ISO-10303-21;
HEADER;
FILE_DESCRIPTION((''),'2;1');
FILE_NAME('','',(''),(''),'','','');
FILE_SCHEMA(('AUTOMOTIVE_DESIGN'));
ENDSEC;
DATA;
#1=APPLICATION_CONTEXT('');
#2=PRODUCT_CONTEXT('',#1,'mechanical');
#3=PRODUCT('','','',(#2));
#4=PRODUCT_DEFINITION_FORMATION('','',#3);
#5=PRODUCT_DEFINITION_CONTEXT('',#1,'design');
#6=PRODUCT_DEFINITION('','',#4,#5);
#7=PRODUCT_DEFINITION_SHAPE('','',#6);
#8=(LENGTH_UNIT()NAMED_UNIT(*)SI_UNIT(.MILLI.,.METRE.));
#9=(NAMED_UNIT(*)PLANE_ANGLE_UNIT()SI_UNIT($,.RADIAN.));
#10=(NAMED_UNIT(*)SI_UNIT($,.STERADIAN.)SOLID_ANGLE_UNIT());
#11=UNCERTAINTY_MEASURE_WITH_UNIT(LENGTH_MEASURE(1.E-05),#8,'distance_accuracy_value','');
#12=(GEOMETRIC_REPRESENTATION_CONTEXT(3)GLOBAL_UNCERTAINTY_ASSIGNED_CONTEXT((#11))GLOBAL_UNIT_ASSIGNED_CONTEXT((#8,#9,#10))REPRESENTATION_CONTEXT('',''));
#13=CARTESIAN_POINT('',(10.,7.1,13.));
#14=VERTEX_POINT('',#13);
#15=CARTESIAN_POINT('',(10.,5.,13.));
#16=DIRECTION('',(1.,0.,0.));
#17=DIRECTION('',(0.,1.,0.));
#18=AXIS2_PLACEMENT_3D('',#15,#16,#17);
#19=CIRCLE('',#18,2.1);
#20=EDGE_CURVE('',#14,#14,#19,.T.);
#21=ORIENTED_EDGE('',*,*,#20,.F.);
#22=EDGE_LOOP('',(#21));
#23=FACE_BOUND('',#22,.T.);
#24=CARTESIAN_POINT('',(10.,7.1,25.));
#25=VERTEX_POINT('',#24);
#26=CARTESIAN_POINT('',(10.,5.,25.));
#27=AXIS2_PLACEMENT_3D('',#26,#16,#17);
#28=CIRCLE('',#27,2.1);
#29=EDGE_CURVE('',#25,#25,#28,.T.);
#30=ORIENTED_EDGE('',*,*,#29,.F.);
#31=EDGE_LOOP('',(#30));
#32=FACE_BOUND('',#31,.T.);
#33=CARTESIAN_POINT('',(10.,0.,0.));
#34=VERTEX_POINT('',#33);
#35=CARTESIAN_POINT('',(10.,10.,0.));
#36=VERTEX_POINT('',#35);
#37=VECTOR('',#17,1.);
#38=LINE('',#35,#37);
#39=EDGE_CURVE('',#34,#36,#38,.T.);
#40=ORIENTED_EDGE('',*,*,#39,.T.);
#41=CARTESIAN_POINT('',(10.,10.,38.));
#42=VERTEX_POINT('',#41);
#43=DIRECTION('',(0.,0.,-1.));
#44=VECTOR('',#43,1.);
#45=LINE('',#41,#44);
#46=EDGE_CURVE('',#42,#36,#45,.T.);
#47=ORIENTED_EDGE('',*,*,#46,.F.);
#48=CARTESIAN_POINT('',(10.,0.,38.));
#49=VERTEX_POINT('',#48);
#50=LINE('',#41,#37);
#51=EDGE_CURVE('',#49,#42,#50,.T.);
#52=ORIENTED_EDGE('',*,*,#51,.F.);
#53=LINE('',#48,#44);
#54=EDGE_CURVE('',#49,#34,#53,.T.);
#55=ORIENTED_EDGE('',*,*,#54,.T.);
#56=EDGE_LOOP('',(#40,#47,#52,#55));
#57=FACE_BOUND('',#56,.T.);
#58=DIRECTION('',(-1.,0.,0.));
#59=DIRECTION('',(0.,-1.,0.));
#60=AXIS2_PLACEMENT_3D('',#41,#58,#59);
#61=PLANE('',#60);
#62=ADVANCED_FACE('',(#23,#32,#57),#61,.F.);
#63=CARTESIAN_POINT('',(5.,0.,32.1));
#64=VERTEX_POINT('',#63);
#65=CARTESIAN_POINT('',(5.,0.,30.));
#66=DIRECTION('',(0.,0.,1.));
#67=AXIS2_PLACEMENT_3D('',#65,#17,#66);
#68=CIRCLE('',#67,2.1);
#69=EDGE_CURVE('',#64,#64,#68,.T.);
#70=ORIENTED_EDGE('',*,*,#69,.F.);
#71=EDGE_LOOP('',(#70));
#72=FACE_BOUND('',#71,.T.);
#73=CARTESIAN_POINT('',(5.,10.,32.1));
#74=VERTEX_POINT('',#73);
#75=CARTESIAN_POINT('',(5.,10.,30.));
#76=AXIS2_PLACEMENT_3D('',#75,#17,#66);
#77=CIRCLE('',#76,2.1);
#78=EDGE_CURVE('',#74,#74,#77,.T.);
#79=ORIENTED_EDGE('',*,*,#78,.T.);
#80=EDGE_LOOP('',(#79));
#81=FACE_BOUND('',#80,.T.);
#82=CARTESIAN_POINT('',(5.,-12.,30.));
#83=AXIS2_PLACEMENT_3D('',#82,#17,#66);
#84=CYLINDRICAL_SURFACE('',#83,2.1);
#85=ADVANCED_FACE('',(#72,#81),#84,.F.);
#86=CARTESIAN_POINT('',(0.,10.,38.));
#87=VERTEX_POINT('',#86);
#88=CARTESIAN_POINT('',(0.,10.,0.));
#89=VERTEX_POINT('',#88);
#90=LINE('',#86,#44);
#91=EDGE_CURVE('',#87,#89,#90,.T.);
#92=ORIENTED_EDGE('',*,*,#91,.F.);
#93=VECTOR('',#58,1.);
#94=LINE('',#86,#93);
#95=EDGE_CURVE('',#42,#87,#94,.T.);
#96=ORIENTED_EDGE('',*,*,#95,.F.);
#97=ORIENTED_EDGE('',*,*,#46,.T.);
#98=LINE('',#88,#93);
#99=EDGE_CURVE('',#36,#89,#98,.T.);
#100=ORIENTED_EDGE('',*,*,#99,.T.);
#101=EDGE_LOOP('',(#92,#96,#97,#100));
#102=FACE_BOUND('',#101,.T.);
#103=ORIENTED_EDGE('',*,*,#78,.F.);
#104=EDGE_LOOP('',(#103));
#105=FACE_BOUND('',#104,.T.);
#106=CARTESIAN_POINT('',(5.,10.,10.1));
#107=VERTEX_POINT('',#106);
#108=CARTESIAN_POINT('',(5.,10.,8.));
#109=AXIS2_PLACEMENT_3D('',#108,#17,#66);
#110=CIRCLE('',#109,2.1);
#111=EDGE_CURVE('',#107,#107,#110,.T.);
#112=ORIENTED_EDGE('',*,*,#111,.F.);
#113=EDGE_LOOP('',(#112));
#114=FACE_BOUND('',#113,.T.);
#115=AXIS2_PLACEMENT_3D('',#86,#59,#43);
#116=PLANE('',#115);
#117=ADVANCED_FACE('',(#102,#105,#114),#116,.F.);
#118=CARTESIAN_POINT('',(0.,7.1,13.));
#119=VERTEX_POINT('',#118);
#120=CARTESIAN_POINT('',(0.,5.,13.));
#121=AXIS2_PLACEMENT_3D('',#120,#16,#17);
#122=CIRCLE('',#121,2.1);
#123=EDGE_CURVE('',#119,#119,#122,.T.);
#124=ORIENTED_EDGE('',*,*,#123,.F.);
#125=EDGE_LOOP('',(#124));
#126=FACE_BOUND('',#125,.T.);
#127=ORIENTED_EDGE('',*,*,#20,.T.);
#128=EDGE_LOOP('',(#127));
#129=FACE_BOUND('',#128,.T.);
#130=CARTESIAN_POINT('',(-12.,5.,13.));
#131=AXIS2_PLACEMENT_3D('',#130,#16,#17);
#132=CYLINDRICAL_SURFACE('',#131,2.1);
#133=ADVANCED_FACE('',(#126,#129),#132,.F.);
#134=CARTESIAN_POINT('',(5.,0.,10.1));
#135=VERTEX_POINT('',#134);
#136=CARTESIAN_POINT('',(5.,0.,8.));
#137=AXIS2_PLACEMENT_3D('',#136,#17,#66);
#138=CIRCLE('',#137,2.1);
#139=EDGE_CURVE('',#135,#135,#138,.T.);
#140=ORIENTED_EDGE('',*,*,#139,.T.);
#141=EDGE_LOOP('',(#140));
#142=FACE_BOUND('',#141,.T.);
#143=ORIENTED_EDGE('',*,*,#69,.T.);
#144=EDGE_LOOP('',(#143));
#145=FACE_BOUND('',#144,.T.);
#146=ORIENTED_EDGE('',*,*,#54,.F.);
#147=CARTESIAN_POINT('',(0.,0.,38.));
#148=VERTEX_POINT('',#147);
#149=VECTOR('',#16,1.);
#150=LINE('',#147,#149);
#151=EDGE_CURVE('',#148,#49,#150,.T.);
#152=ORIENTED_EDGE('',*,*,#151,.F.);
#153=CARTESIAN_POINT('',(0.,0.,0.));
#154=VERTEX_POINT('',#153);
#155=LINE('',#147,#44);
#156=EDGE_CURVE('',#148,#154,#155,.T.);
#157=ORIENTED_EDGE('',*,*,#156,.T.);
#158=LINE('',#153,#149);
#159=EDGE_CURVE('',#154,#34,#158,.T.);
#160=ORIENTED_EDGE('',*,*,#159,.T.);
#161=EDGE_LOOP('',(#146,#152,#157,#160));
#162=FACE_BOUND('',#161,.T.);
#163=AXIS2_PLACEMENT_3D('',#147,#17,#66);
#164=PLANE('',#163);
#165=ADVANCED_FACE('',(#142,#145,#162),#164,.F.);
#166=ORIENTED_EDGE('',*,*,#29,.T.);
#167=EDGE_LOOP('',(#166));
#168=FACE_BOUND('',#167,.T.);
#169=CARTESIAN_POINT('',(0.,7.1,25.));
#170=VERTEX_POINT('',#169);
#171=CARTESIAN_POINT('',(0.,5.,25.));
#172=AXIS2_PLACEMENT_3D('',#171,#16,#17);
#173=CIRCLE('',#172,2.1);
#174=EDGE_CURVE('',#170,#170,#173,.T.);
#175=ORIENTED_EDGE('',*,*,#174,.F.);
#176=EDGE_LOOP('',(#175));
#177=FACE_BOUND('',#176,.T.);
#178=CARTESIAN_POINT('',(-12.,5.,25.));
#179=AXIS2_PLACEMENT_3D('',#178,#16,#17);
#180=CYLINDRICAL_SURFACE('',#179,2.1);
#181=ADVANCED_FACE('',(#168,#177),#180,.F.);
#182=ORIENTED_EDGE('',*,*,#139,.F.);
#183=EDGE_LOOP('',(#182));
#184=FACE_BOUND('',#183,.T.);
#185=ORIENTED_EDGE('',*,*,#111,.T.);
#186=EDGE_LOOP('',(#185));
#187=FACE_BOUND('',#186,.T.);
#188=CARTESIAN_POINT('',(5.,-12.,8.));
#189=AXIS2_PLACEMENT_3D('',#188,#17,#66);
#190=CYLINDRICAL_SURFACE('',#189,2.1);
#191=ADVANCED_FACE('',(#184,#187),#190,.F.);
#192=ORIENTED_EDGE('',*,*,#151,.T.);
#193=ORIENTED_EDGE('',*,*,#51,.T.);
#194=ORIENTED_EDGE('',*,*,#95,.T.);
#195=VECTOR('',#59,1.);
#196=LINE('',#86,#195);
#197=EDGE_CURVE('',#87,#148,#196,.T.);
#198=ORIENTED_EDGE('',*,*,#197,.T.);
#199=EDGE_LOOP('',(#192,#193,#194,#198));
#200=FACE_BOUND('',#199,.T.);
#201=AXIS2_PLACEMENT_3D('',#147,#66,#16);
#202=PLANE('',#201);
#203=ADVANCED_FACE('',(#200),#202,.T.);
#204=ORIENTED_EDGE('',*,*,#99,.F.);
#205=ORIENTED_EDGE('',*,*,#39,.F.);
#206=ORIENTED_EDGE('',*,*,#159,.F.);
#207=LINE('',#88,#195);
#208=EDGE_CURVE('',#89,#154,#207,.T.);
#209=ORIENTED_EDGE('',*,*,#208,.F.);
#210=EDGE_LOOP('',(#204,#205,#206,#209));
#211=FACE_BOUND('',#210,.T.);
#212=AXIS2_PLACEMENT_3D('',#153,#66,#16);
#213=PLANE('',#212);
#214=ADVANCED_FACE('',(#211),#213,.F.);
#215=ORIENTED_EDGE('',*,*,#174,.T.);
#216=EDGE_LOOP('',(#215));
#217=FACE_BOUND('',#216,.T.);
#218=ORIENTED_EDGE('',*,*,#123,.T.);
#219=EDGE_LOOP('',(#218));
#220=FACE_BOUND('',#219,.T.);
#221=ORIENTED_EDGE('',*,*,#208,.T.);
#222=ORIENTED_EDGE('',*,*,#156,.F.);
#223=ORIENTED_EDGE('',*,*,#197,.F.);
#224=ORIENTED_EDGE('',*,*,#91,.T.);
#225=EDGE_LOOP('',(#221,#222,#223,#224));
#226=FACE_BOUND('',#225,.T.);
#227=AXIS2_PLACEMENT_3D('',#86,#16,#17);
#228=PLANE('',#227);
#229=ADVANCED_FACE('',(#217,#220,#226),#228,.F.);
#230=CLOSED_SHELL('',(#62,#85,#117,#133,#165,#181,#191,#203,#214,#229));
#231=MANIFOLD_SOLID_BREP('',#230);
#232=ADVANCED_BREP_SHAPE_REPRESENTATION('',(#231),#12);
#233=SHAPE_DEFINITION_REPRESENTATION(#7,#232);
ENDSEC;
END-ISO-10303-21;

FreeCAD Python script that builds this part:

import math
import FreeCAD as App
import Part
import Sketcher

V = App.Vector
Q = App.Units.Quantity

doc = App.newDocument("Part")
params = doc.addObject("Spreadsheet::Sheet", "Params")
for row, (alias, value) in enumerate([
    ("sketch1_width", "10 mm"),
    ("pad1_length", "38 mm"),
    ("sketch2_radius", "2.1 mm"),
    ("pocket1_length", "22 mm"),
    ("sketch3_diameter", "4.2 mm"),
    ("pocket2_length", "22 mm"),
], start=1):
    params.set(f"A{row}", alias)
    params.set(f"B{row}", "=" + value)
    params.setAlias(f"B{row}", alias)

body = doc.addObject("PartDesign::Body", "Body")

# Sketch on XY plane
sketch1 = body.newObject("Sketcher::SketchObject", "Sketch")
sketch1.AttachmentSupport = (doc.getObject("XY_Plane"), [""])
sketch1.MapMode = "FlatFace"
sketch1.addGeometry(Part.LineSegment(V(0, 10, 0), V(0, 0, 0)), False)
sketch1.addGeometry(Part.LineSegment(V(0, 0, 0), V(10, 0, 0)), False)
sketch1.addGeometry(Part.LineSegment(V(10, 0, 0), V(10, 10, 0)), False)
sketch1.addGeometry(Part.LineSegment(V(10, 10, 0), V(0, 10, 0)), False)
sketch1.addConstraint(Sketcher.Constraint("Coincident", 0, 2, 1, 1))
sketch1.addConstraint(Sketcher.Constraint("Coincident", 1, 2, 2, 1))
sketch1.addConstraint(Sketcher.Constraint("Coincident", 2, 2, 3, 1))
sketch1.addConstraint(Sketcher.Constraint("Coincident", 3, 2, 0, 1))
sketch1.addConstraint(Sketcher.Constraint("Vertical", 0))
sketch1.addConstraint(Sketcher.Constraint("Horizontal", 1))
sketch1.addConstraint(Sketcher.Constraint("Vertical", 2))
sketch1.addConstraint(Sketcher.Constraint("Horizontal", 3))
sketch1.addConstraint(Sketcher.Constraint("Coincident", 0, 2, -1, 1))
sketch1.addConstraint(Sketcher.Constraint("Equal", 3, 0))
sketch1.addConstraint(Sketcher.Constraint("DistanceX", 1, 1, 1, 2, Q("10 mm")))
sketch1.setExpression("Constraints[10]", "Params.sketch1_width")
pad1 = body.newObject("PartDesign::Pad", "Pad")
pad1.Profile = sketch1
pad1.setExpression("Length", "Params.pad1_length")

# Sketch on XZ plane
sketch2 = body.newObject("Sketcher::SketchObject", "Sketch001")
sketch2.AttachmentSupport = (doc.getObject("XZ_Plane"), [""])
sketch2.MapMode = "FlatFace"
sketch2.AttachmentOffset = App.Placement(V(0, 0, -10), App.Rotation())
sketch2.addGeometry(Part.ArcOfCircle(Part.Circle(V(5, 8, 0), V(0, 0, 1), 2.1), math.radians(-90), math.radians(0)), False)
sketch2.addGeometry(Part.ArcOfCircle(Part.Circle(V(5, 8, 0), V(0, 0, 1), 2.1), math.radians(90), math.radians(270)), False)
sketch2.addGeometry(Part.ArcOfCircle(Part.Circle(V(5, 8, 0), V(0, 0, 1), 2.1), math.radians(0), math.radians(90)), False)
sketch2.addGeometry(Part.ArcOfCircle(Part.Circle(V(5, 30, 0), V(0, 0, 1), 2.1), math.radians(-90), math.radians(0)), False)
sketch2.addGeometry(Part.ArcOfCircle(Part.Circle(V(5, 30, 0), V(0, 0, 1), 2.1), math.radians(90), math.radians(270)), False)
sketch2.addGeometry(Part.ArcOfCircle(Part.Circle(V(5, 30, 0), V(0, 0, 1), 2.1), math.radians(0), math.radians(90)), False)
sketch2.addConstraint(Sketcher.Constraint("Tangent", 0, 1, 1, 2))
sketch2.addConstraint(Sketcher.Constraint("Tangent", 1, 1, 2, 2))
sketch2.addConstraint(Sketcher.Constraint("Tangent", 2, 1, 0, 2))
sketch2.addConstraint(Sketcher.Constraint("Tangent", 3, 1, 4, 2))
sketch2.addConstraint(Sketcher.Constraint("Tangent", 4, 1, 5, 2))
sketch2.addConstraint(Sketcher.Constraint("Tangent", 5, 1, 3, 2))
sketch2.addConstraint(Sketcher.Constraint("Equal", 2, 3))
sketch2.addConstraint(Sketcher.Constraint("Horizontal", 1, 3, 2, 1))
sketch2.addConstraint(Sketcher.Constraint("Horizontal", 4, 3, 5, 1))
sketch2.addConstraint(Sketcher.Constraint("Vertical", 2, 3, 3, 3))
sketch2.addConstraint(Sketcher.Constraint("Vertical", 5, 3, 0, 1))
sketch2.addConstraint(Sketcher.Constraint("Vertical", 0, 1, 1, 1))
sketch2.addConstraint(Sketcher.Constraint("Vertical", 1, 1, 3, 1))
sketch2.addConstraint(Sketcher.Constraint("Vertical", 3, 1, 4, 1))
sketch2.addConstraint(Sketcher.Constraint("Radius", 0, Q("2.1 mm")))
sketch2.addConstraint(Sketcher.Constraint("DistanceX", -1, 1, 0, 3, Q("5 mm")))
sketch2.addConstraint(Sketcher.Constraint("DistanceY", -1, 1, 0, 3, Q("8 mm")))
sketch2.addConstraint(Sketcher.Constraint("DistanceY", -1, 1, 3, 3, Q("30 mm")))
sketch2.setExpression("Constraints[14]", "Params.sketch2_radius")
pocket1 = body.newObject("PartDesign::Pocket", "Pocket")
pocket1.Profile = sketch2
pocket1.setExpression("Length", "Params.pocket1_length")
pocket1.Reversed = True

# Sketch on YZ plane
sketch3 = body.newObject("Sketcher::SketchObject", "Sketch002")
sketch3.AttachmentSupport = (doc.getObject("YZ_Plane"), [""])
sketch3.MapMode = "FlatFace"
sketch3.AttachmentOffset = App.Placement(V(0, 0, 10), App.Rotation())
sketch3.addGeometry(Part.Circle(V(5, 25, 0), V(0, 0, 1), 2.1), False)
sketch3.addGeometry(Part.Circle(V(5, 13, 0), V(0, 0, 1), 2.1), False)
sketch3.addConstraint(Sketcher.Constraint("Equal", 0, 1))
sketch3.addConstraint(Sketcher.Constraint("Vertical", 0, 3, 1, 3))
sketch3.addConstraint(Sketcher.Constraint("Diameter", 0, Q("4.2 mm")))
sketch3.addConstraint(Sketcher.Constraint("DistanceX", -1, 1, 0, 3, Q("5 mm")))
sketch3.addConstraint(Sketcher.Constraint("DistanceY", -1, 1, 0, 3, Q("25 mm")))
sketch3.addConstraint(Sketcher.Constraint("DistanceY", -1, 1, 1, 3, Q("13 mm")))
sketch3.setExpression("Constraints[2]", "Params.sketch3_diameter")
pocket2 = body.newObject("PartDesign::Pocket", "Pocket001")
pocket2.Profile = sketch3
pocket2.setExpression("Length", "Params.pocket2_length")

doc.recompute()
